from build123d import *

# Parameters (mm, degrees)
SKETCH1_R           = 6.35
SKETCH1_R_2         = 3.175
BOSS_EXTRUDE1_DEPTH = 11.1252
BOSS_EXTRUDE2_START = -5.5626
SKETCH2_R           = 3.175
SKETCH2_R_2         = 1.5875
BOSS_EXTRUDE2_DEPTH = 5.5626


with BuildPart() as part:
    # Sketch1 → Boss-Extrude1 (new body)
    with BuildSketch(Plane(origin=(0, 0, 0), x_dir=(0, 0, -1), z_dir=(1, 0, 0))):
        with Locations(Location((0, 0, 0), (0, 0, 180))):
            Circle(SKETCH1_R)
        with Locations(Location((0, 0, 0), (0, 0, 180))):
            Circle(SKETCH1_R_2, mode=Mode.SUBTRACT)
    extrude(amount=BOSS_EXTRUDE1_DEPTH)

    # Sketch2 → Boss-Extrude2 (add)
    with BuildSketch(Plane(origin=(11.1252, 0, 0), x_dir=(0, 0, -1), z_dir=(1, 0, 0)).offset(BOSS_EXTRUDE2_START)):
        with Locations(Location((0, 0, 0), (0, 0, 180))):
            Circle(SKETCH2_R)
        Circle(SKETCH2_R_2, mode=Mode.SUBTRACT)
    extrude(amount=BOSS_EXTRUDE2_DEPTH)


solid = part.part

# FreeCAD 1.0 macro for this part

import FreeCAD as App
import Part
import Sketcher

V = App.Vector
Q = App.Units.Quantity

doc = App.newDocument("Part")
body = doc.addObject("PartDesign::Body", "Body")

# Sketch on YZ plane
sketch1 = body.newObject("Sketcher::SketchObject", "Sketch")
sketch1.AttachmentSupport = (doc.getObject("YZ_Plane"), [""])
sketch1.MapMode = "FlatFace"
sketch1.addGeometry(Part.Circle(V(0, 0, 0), V(0, 0, 1), 6.35), False)
sketch1.addGeometry(Part.Circle(V(0, 0, 0), V(0, 0, 1), 3.175), False)
sketch1.addConstraint(Sketcher.Constraint("Coincident", 0, 3, -1, 1))
sketch1.addConstraint(Sketcher.Constraint("Coincident", 1, 3, -1, 1))
sketch1.addConstraint(Sketcher.Constraint("Diameter", 0, Q("0.5 in")))
sketch1.addConstraint(Sketcher.Constraint("Diameter", 1, Q("0.25 in")))
pad1 = body.newObject("PartDesign::Pad", "Pad")
pad1.Profile = sketch1
pad1.Length = Q("0.438 in")

# Sketch on YZ plane
sketch2 = body.newObject("Sketcher::SketchObject", "Sketch001")
sketch2.AttachmentSupport = (doc.getObject("YZ_Plane"), [""])
sketch2.MapMode = "FlatFace"
sketch2.AttachmentOffset = App.Placement(V(0, 0, 0.219 * 25.4), App.Rotation())
sketch2.addGeometry(Part.Circle(V(0, 0, 0), V(0, 0, 1), 3.175), False)
sketch2.addGeometry(Part.Circle(V(0, 0, 0), V(0, 0, 1), 1.5875), False)
sketch2.addConstraint(Sketcher.Constraint("Coincident", 0, 3, -1, 1))
sketch2.addConstraint(Sketcher.Constraint("Coincident", 1, 3, -1, 1))
sketch2.addConstraint(Sketcher.Constraint("Diameter", 0, Q("0.25 in")))
sketch2.addConstraint(Sketcher.Constraint("Diameter", 1, Q("0.125 in")))
pad2 = body.newObject("PartDesign::Pad", "Pad001")
pad2.Profile = sketch2
pad2.Length = Q("0.219 in")

doc.recompute()
